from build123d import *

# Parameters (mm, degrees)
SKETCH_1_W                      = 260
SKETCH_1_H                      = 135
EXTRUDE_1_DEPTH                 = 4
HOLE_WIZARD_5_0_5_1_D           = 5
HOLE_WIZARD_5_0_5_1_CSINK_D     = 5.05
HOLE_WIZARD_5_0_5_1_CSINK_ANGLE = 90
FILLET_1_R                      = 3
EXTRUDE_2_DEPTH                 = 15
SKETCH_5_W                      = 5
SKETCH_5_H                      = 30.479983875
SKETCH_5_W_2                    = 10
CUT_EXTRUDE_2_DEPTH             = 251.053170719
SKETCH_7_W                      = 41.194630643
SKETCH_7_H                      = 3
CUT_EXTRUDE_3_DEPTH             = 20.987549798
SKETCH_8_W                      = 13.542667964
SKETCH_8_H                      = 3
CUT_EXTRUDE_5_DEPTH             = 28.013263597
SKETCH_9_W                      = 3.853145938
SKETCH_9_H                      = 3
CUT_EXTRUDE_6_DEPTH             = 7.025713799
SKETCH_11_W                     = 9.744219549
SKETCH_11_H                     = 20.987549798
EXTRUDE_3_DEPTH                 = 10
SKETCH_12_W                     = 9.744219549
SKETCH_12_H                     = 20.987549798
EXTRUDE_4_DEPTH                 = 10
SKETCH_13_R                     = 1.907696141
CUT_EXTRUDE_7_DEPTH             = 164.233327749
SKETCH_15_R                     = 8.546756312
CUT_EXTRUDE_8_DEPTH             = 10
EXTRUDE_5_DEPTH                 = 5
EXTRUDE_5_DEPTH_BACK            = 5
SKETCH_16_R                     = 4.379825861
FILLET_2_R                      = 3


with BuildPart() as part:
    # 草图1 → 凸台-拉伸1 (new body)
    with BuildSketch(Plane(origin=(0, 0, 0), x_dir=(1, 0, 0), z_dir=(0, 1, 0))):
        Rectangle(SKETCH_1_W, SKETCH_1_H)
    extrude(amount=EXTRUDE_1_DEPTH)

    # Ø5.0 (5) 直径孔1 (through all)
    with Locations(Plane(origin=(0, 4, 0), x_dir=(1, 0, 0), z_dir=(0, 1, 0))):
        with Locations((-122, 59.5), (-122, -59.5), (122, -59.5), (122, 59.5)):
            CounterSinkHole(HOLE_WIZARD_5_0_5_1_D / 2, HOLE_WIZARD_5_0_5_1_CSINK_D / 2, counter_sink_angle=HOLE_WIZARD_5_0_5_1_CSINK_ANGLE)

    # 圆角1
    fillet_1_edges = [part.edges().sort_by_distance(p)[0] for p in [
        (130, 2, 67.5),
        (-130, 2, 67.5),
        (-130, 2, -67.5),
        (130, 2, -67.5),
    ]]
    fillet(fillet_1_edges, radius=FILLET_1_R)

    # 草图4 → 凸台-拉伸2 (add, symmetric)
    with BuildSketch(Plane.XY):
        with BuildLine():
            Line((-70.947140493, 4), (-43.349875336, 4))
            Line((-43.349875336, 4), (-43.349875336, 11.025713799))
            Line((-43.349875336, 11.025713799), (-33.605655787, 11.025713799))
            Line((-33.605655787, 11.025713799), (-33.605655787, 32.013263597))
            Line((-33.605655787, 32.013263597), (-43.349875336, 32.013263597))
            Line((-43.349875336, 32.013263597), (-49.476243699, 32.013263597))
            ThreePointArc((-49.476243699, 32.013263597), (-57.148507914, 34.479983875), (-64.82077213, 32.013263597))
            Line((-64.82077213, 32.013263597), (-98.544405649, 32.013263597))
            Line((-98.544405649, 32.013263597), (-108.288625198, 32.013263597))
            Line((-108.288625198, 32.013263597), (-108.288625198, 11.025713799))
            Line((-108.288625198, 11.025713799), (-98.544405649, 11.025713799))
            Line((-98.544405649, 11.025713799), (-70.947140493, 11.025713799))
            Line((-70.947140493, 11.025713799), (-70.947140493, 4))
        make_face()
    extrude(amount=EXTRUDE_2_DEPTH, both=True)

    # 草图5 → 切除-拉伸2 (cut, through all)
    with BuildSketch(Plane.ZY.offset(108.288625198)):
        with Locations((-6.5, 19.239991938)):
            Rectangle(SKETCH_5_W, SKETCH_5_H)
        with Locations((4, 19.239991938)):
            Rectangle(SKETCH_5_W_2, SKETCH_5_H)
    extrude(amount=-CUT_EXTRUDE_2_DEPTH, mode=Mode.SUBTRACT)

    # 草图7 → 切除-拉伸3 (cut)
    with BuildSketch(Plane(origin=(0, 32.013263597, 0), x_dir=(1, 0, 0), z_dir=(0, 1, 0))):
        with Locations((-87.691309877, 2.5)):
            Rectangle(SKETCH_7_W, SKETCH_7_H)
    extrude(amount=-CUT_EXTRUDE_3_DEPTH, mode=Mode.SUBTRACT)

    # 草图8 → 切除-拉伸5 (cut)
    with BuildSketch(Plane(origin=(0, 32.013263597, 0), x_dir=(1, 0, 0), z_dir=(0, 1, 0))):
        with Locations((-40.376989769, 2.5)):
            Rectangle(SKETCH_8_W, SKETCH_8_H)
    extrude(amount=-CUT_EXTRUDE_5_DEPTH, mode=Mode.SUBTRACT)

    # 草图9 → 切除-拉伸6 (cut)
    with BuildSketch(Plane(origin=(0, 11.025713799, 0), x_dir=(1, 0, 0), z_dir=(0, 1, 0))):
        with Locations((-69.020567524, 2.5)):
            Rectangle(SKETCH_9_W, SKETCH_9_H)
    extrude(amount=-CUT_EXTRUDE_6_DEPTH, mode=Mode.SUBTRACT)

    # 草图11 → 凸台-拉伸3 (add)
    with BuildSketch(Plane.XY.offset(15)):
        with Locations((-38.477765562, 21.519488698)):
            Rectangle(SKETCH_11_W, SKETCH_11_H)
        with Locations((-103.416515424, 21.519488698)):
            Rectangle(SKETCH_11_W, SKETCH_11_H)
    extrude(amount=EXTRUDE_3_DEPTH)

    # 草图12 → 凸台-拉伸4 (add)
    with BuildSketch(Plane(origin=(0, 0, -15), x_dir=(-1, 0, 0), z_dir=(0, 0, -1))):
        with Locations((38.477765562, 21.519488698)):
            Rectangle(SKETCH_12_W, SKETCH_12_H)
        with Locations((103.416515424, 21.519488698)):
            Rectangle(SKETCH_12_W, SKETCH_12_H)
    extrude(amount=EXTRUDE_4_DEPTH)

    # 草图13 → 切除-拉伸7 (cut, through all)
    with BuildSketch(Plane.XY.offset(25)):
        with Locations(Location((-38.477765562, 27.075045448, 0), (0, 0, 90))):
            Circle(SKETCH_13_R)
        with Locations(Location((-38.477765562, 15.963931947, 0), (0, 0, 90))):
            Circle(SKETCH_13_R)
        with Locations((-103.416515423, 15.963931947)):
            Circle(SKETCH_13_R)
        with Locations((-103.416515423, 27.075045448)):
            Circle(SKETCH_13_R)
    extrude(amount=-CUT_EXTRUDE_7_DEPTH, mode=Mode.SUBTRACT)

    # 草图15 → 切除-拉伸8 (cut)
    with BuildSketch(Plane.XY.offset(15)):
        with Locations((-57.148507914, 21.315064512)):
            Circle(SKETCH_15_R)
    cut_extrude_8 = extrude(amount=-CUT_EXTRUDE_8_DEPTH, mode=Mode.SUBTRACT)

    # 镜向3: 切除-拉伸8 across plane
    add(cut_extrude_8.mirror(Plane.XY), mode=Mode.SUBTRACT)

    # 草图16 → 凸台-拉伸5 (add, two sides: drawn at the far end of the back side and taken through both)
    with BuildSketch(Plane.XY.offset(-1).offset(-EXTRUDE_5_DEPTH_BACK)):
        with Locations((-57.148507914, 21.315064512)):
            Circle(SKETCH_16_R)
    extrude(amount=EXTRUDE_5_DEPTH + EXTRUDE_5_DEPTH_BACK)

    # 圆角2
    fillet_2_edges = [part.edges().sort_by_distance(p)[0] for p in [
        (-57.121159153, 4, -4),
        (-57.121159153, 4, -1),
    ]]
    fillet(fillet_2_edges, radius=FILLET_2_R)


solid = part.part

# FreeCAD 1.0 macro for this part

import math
import FreeCAD as App
import Part
import Sketcher
from FreeCAD import Vector


def edges_at(feature, points):
    """Names of the edges that pass closest to the given points."""
    edges = feature.Shape.Edges
    near = lambda p: min(range(len(edges)), key=lambda i: edges[i].distToShape(Part.Vertex(*p))[0])
    return sorted({f"Edge{near(p) + 1}" for p in points})

doc = App.newDocument("Part")
body = doc.addObject("PartDesign::Body", "Body")

# Sketch on XZ plane
sketch1 = body.newObject("Sketcher::SketchObject", "Sketch")
sketch1.AttachmentSupport = (doc.getObject("XZ_Plane"), [""])
sketch1.MapMode = "FlatFace"
sketch1.addGeometry(Part.LineSegment(Vector(-130, -67.5, 0), Vector(-130, 67.5, 0)), False)
sketch1.addGeometry(Part.LineSegment(Vector(-130, 67.5, 0), Vector(130, 67.5, 0)), False)
sketch1.addGeometry(Part.LineSegment(Vector(130, 67.5, 0), Vector(130, -67.5, 0)), False)
sketch1.addGeometry(Part.LineSegment(Vector(130, -67.5, 0), Vector(-130, -67.5, 0)), False)
sketch1.addConstraint(Sketcher.Constraint("Coincident", 0, 2, 1, 1))
sketch1.addConstraint(Sketcher.Constraint("Coincident", 1, 2, 2, 1))
sketch1.addConstraint(Sketcher.Constraint("Coincident", 2, 2, 3, 1))
sketch1.addConstraint(Sketcher.Constraint("Coincident", 3, 2, 0, 1))
sketch1.addConstraint(Sketcher.Constraint("Vertical", 0))
sketch1.addConstraint(Sketcher.Constraint("Horizontal", 1))
sketch1.addConstraint(Sketcher.Constraint("Vertical", 2))
sketch1.addConstraint(Sketcher.Constraint("Horizontal", 3))
sketch1.addConstraint(Sketcher.Constraint("Symmetric", 0, 2, 2, 2, -1, 1))
sketch1.addConstraint(Sketcher.Constraint("DistanceX", 1, 1, 1, 2, 260.0))
sketch1.addConstraint(Sketcher.Constraint("DistanceY", 0, 1, 0, 2, 135.0))
pad1 = body.newObject("PartDesign::Pad", "Pad")
pad1.Profile = sketch1
pad1.Length = 4
pad1.Reversed = True

# Sketch on XZ plane
sketch2 = body.newObject("Sketcher::SketchObject", "Sketch001")
sketch2.AttachmentSupport = (doc.getObject("XZ_Plane"), [""])
sketch2.MapMode = "FlatFace"
sketch2.AttachmentOffset = App.Placement(Vector(0, 0, -4), App.Rotation())
sketch2.addGeometry(Part.Circle(Vector(-122, -59.5, 0), Vector(0, 0, 1), 2.5), False)
sketch2.addGeometry(Part.Circle(Vector(-122, 59.5, 0), Vector(0, 0, 1), 2.5), False)
sketch2.addGeometry(Part.Circle(Vector(122, 59.5, 0), Vector(0, 0, 1), 2.5), False)
sketch2.addGeometry(Part.Circle(Vector(122, -59.5, 0), Vector(0, 0, 1), 2.5), False)
sketch2.addConstraint(Sketcher.Constraint("Equal", 0, 1))
sketch2.addConstraint(Sketcher.Constraint("Equal", 1, 2))
sketch2.addConstraint(Sketcher.Constraint("Equal", 2, 3))
sketch2.addConstraint(Sketcher.Constraint("Symmetric", 0, 3, 2, 3, -1, 1))
sketch2.addConstraint(Sketcher.Constraint("Symmetric", 1, 3, 3, 3, -1, 1))
sketch2.addConstraint(Sketcher.Constraint("Symmetric", 1, 3, 2, 3, -2))
sketch2.addConstraint(Sketcher.Constraint("Diameter", 0, 5.0))
sketch2.addConstraint(Sketcher.Constraint("DistanceX", 0, 3, -1, 1, 122.0))
sketch2.addConstraint(Sketcher.Constraint("DistanceY", 0, 3, 1, 3, 119.0))
doc.recompute()
hole = body.newObject("PartDesign::Hole", "Hole")
hole.Profile = sketch2
hole.ThreadType = "None"
hole.Diameter = 5
hole.DepthType = "ThroughAll"
hole.HoleCutType = "Countersink"
hole.HoleCutDiameter = 5.05
hole.HoleCutCountersinkAngle = 90
hole.Reversed = True
doc.recompute()

fillet = body.newObject("PartDesign::Fillet", "Fillet")
fillet.Base = (hole, edges_at(hole, [
    (130, 2, 67.5),
    (-130, 2, 67.5),
    (-130, 2, -67.5),
    (130, 2, -67.5),
]))
fillet.Radius = 3

# Sketch on XY plane
sketch3 = body.newObject("Sketcher::SketchObject", "Sketch002")
sketch3.AttachmentSupport = (doc.getObject("XY_Plane"), [""])
sketch3.MapMode = "FlatFace"
sketch3.addGeometry(Part.LineSegment(Vector(-70.94714, 4, 0), Vector(-43.349875, 4, 0)), False)
sketch3.addGeometry(Part.LineSegment(Vector(-43.349875, 4, 0), Vector(-43.349875, 11.025714, 0)), False)
sketch3.addGeometry(Part.LineSegment(Vector(-43.349875, 11.025714, 0), Vector(-33.605656, 11.025714, 0)), False)
sketch3.addGeometry(Part.LineSegment(Vector(-33.605656, 11.025714, 0), Vector(-33.605656, 32.013264, 0)), False)
sketch3.addGeometry(Part.LineSegment(Vector(-33.605656, 32.013264, 0), Vector(-49.476244, 32.013264, 0)), False)
sketch3.addGeometry(Part.ArcOfCircle(Part.Circle(Vector(-57.148508, 21.315065, 0), Vector(0, 0, 1), 13.164919), math.radians(54.353621), math.radians(125.646379)), False)
sketch3.addGeometry(Part.LineSegment(Vector(-64.820772, 32.013264, 0), Vector(-108.288625, 32.013264, 0)), False)
sketch3.addGeometry(Part.LineSegment(Vector(-108.288625, 32.013264, 0), Vector(-108.288625, 11.025714, 0)), False)
sketch3.addGeometry(Part.LineSegment(Vector(-108.288625, 11.025714, 0), Vector(-70.94714, 11.025714, 0)), False)
sketch3.addGeometry(Part.LineSegment(Vector(-70.94714, 11.025714, 0), Vector(-70.94714, 4, 0)), False)
sketch3.addConstraint(Sketcher.Constraint("Coincident", 0, 2, 1, 1))
sketch3.addConstraint(Sketcher.Constraint("Coincident", 1, 2, 2, 1))
sketch3.addConstraint(Sketcher.Constraint("Coincident", 2, 2, 3, 1))
sketch3.addConstraint(Sketcher.Constraint("Coincident", 3, 2, 4, 1))
sketch3.addConstraint(Sketcher.Constraint("Coincident", 4, 2, 5, 1))
sketch3.addConstraint(Sketcher.Constraint("Coincident", 5, 2, 6, 1))
sketch3.addConstraint(Sketcher.Constraint("Coincident", 6, 2, 7, 1))
sketch3.addConstraint(Sketcher.Constraint("Coincident", 7, 2, 8, 1))
sketch3.addConstraint(Sketcher.Constraint("Coincident", 8, 2, 9, 1))
sketch3.addConstraint(Sketcher.Constraint("Coincident", 9, 2, 0, 1))
sketch3.addConstraint(Sketcher.Constraint("Horizontal", 0))
sketch3.addConstraint(Sketcher.Constraint("Vertical", 1))
sketch3.addConstraint(Sketcher.Constraint("Horizontal", 2))
sketch3.addConstraint(Sketcher.Constraint("Vertical", 3))
sketch3.addConstraint(Sketcher.Constraint("Horizontal", 4))
sketch3.addConstraint(Sketcher.Constraint("Horizontal", 6))
sketch3.addConstraint(Sketcher.Constraint("Vertical", 7))
sketch3.addConstraint(Sketcher.Constraint("Horizontal", 8))
sketch3.addConstraint(Sketcher.Constraint("Vertical", 9))
sketch3.addConstraint(Sketcher.Constraint("Horizontal", 4, 2, 5, 2))
sketch3.addConstraint(Sketcher.Constraint("Horizontal", 2, 2, 7, 2))
sketch3.addConstraint(Sketcher.Constraint("DistanceY", -1, 1, 0, 2, 4.0))
sketch3.addConstraint(Sketcher.Constraint("Radius", 5, 13.164919))
sketch3.addConstraint(Sketcher.Constraint("DistanceX", 2, 1, 2, 2, 9.74422))
sketch3.addConstraint(Sketcher.Constraint("DistanceY", 3, 1, 3, 2, 20.98755))
sketch3.addConstraint(Sketcher.Constraint("DistanceY", 5, 3, 3, 2, 10.698199))
sketch3.addConstraint(Sketcher.Constraint("DistanceX", 0, 1, 0, 2, 27.597265))
sketch3.addConstraint(Sketcher.Constraint("DistanceX", 4, 2, 4, 1, 15.870588))
sketch3.addConstraint(Sketcher.Constraint("DistanceX", 6, 2, 6, 1, 43.467853))
sketch3.addConstraint(Sketcher.Constraint("DistanceY", 1, 1, 1, 2, 7.025714))
sketch3.addConstraint(Sketcher.Constraint("DistanceX", 8, 2, -1, 1, 70.94714))
pad2 = body.newObject("PartDesign::Pad", "Pad001")
pad2.Profile = sketch3
pad2.Length = 30
pad2.Midplane = True

# Sketch on YZ plane
sketch4 = body.newObject("Sketcher::SketchObject", "Sketch003")
sketch4.AttachmentSupport = (doc.getObject("YZ_Plane"), [""])
sketch4.MapMode = "FlatFace"
sketch4.AttachmentOffset = App.Placement(Vector(0, 0, -108.288625), App.Rotation())
sketch4.addGeometry(Part.LineSegment(Vector(34.479984, -9, 0), Vector(4, -9, 0)), False)
sketch4.addGeometry(Part.LineSegment(Vector(4, -9, 0), Vector(4, -4, 0)), False)
sketch4.addGeometry(Part.LineSegment(Vector(4, -4, 0), Vector(34.479984, -4, 0)), False)
sketch4.addGeometry(Part.LineSegment(Vector(34.479984, -4, 0), Vector(34.479984, -9, 0)), False)
sketch4.addGeometry(Part.LineSegment(Vector(34.479984, -1, 0), Vector(4, -1, 0)), False)
sketch4.addGeometry(Part.LineSegment(Vector(4, -1, 0), Vector(4, 9, 0)), False)
sketch4.addGeometry(Part.LineSegment(Vector(4, 9, 0), Vector(34.479984, 9, 0)), False)
sketch4.addGeometry(Part.LineSegment(Vector(34.479984, 9, 0), Vector(34.479984, -1, 0)), False)
sketch4.addConstraint(Sketcher.Constraint("Coincident", 0, 2, 1, 1))
sketch4.addConstraint(Sketcher.Constraint("Coincident", 1, 2, 2, 1))
sketch4.addConstraint(Sketcher.Constraint("Coincident", 2, 2, 3, 1))
sketch4.addConstraint(Sketcher.Constraint("Coincident", 3, 2, 0, 1))
sketch4.addConstraint(Sketcher.Constraint("Coincident", 4, 2, 5, 1))
sketch4.addConstraint(Sketcher.Constraint("Coincident", 5, 2, 6, 1))
sketch4.addConstraint(Sketcher.Constraint("Coincident", 6, 2, 7, 1))
sketch4.addConstraint(Sketcher.Constraint("Coincident", 7, 2, 4, 1))
sketch4.addConstraint(Sketcher.Constraint("Horizontal", 0))
sketch4.addConstraint(Sketcher.Constraint("Vertical", 1))
sketch4.addConstraint(Sketcher.Constraint("Horizontal", 2))
sketch4.addConstraint(Sketcher.Constraint("Vertical", 3))
sketch4.addConstraint(Sketcher.Constraint("Horizontal", 4))
sketch4.addConstraint(Sketcher.Constraint("Vertical", 5))
sketch4.addConstraint(Sketcher.Constraint("Horizontal", 6))
sketch4.addConstraint(Sketcher.Constraint("Vertical", 7))
sketch4.addConstraint(Sketcher.Constraint("Symmetric", 0, 2, 5, 2, -1))
sketch4.addConstraint(Sketcher.Constraint("Vertical", 3, 2, 6, 2))
sketch4.addConstraint(Sketcher.Constraint("DistanceY", 1, 1, 1, 2, 5.0))
sketch4.addConstraint(Sketcher.Constraint("DistanceY", 5, 1, 5, 2, 10.0))
sketch4.addConstraint(Sketcher.Constraint("DistanceX", -1, 1, 0, 2, 4.0))
sketch4.addConstraint(Sketcher.Constraint("DistanceY", 0, 2, -1, 1, 9.0))
sketch4.addConstraint(Sketcher.Constraint("DistanceX", 0, 2, 0, 1, 30.479984))
pocket1 = body.newObject("PartDesign::Pocket", "Pocket")
pocket1.Profile = sketch4
pocket1.Type = "ThroughAll"
pocket1.Reversed = True

# Sketch on XZ plane
sketch5 = body.newObject("Sketcher::SketchObject", "Sketch004")
sketch5.AttachmentSupport = (doc.getObject("XZ_Plane"), [""])
sketch5.MapMode = "FlatFace"
sketch5.AttachmentOffset = App.Placement(Vector(0, 0, -32.013264), App.Rotation())
sketch5.addGeometry(Part.LineSegment(Vector(-108.288625, -4, 0), Vector(-108.288625, -1, 0)), False)
sketch5.addGeometry(Part.LineSegment(Vector(-108.288625, -1, 0), Vector(-67.093995, -1, 0)), False)
sketch5.addGeometry(Part.LineSegment(Vector(-67.093995, -1, 0), Vector(-67.093995, -4, 0)), False)
sketch5.addGeometry(Part.LineSegment(Vector(-67.093995, -4, 0), Vector(-108.288625, -4, 0)), False)
sketch5.addConstraint(Sketcher.Constraint("Coincident", 0, 2, 1, 1))
sketch5.addConstraint(Sketcher.Constraint("Coincident", 1, 2, 2, 1))
sketch5.addConstraint(Sketcher.Constraint("Coincident", 2, 2, 3, 1))
sketch5.addConstraint(Sketcher.Constraint("Coincident", 3, 2, 0, 1))
sketch5.addConstraint(Sketcher.Constraint("Vertical", 0))
sketch5.addConstraint(Sketcher.Constraint("Horizontal", 1))
sketch5.addConstraint(Sketcher.Constraint("Vertical", 2))
sketch5.addConstraint(Sketcher.Constraint("Horizontal", 3))
sketch5.addConstraint(Sketcher.Constraint("DistanceY", 0, 1, 0, 2, 3.0))
sketch5.addConstraint(Sketcher.Constraint("DistanceY", 0, 2, -1, 1, 1.0))
sketch5.addConstraint(Sketcher.Constraint("DistanceX", 1, 1, 1, 2, 41.194631))
sketch5.addConstraint(Sketcher.Constraint("DistanceX", 0, 2, -1, 1, 108.288625))
pocket2 = body.newObject("PartDesign::Pocket", "Pocket001")
pocket2.Profile = sketch5
pocket2.Length = 20.98755
pocket2.Reversed = True

# Sketch on XZ plane
sketch6 = body.newObject("Sketcher::SketchObject", "Sketch005")
sketch6.AttachmentSupport = (doc.getObject("XZ_Plane"), [""])
sketch6.MapMode = "FlatFace"
sketch6.AttachmentOffset = App.Placement(Vector(0, 0, -32.013264), App.Rotation())
sketch6.addGeometry(Part.LineSegment(Vector(-47.148324, -4, 0), Vector(-47.148324, -1, 0)), False)
sketch6.addGeometry(Part.LineSegment(Vector(-47.148324, -1, 0), Vector(-33.605656, -1, 0)), False)
sketch6.addGeometry(Part.LineSegment(Vector(-33.605656, -1, 0), Vector(-33.605656, -4, 0)), False)
sketch6.addGeometry(Part.LineSegment(Vector(-33.605656, -4, 0), Vector(-47.148324, -4, 0)), False)
sketch6.addConstraint(Sketcher.Constraint("Coincident", 0, 2, 1, 1))
sketch6.addConstraint(Sketcher.Constraint("Coincident", 1, 2, 2, 1))
sketch6.addConstraint(Sketcher.Constraint("Coincident", 2, 2, 3, 1))
sketch6.addConstraint(Sketcher.Constraint("Coincident", 3, 2, 0, 1))
sketch6.addConstraint(Sketcher.Constraint("Vertical", 0))
sketch6.addConstraint(Sketcher.Constraint("Horizontal", 1))
sketch6.addConstraint(Sketcher.Constraint("Vertical", 2))
sketch6.addConstraint(Sketcher.Constraint("Horizontal", 3))
sketch6.addConstraint(Sketcher.Constraint("DistanceY", 0, 1, 0, 2, 3.0))
sketch6.addConstraint(Sketcher.Constraint("DistanceY", 0, 2, -1, 1, 1.0))
sketch6.addConstraint(Sketcher.Constraint("DistanceX", 1, 1, 1, 2, 13.542668))
sketch6.addConstraint(Sketcher.Constraint("DistanceX", 0, 2, -1, 1, 47.148324))
pocket3 = body.newObject("PartDesign::Pocket", "Pocket002")
pocket3.Profile = sketch6
pocket3.Length = 28.013264
pocket3.Reversed = True

# Sketch on XZ plane
sketch7 = body.newObject("Sketcher::SketchObject", "Sketch006")
sketch7.AttachmentSupport = (doc.getObject("XZ_Plane"), [""])
sketch7.MapMode = "FlatFace"
sketch7.AttachmentOffset = App.Placement(Vector(0, 0, -11.025714), App.Rotation())
sketch7.addGeometry(Part.LineSegment(Vector(-70.94714, -4, 0), Vector(-70.94714, -1, 0)), False)
sketch7.addGeometry(Part.LineSegment(Vector(-70.94714, -1, 0), Vector(-67.093995, -1, 0)), False)
sketch7.addGeometry(Part.LineSegment(Vector(-67.093995, -1, 0), Vector(-67.093995, -4, 0)), False)
sketch7.addGeometry(Part.LineSegment(Vector(-67.093995, -4, 0), Vector(-70.94714, -4, 0)), False)
sketch7.addConstraint(Sketcher.Constraint("Coincident", 0, 2, 1, 1))
sketch7.addConstraint(Sketcher.Constraint("Coincident", 1, 2, 2, 1))
sketch7.addConstraint(Sketcher.Constraint("Coincident", 2, 2, 3, 1))
sketch7.addConstraint(Sketcher.Constraint("Coincident", 3, 2, 0, 1))
sketch7.addConstraint(Sketcher.Constraint("Vertical", 0))
sketch7.addConstraint(Sketcher.Constraint("Horizontal", 1))
sketch7.addConstraint(Sketcher.Constraint("Vertical", 2))
sketch7.addConstraint(Sketcher.Constraint("Horizontal", 3))
sketch7.addConstraint(Sketcher.Constraint("DistanceY", 0, 1, 0, 2, 3.0))
sketch7.addConstraint(Sketcher.Constraint("DistanceY", 0, 2, -1, 1, 1.0))
sketch7.addConstraint(Sketcher.Constraint("DistanceX", 1, 1, 1, 2, 3.853146))
sketch7.addConstraint(Sketcher.Constraint("DistanceX", 0, 2, -1, 1, 70.94714))
pocket4 = body.newObject("PartDesign::Pocket", "Pocket003")
pocket4.Profile = sketch7
pocket4.Length = 7.025714
pocket4.Reversed = True

# Sketch on XY plane
sketch8 = body.newObject("Sketcher::SketchObject", "Sketch007")
sketch8.AttachmentSupport = (doc.getObject("XY_Plane"), [""])
sketch8.MapMode = "FlatFace"
sketch8.AttachmentOffset = App.Placement(Vector(0, 0, 15), App.Rotation())
sketch8.addGeometry(Part.LineSegment(Vector(-43.349875, 32.013264, 0), Vector(-43.349875, 11.025714, 0)), False)
sketch8.addGeometry(Part.LineSegment(Vector(-43.349875, 11.025714, 0), Vector(-33.605656, 11.025714, 0)), False)
sketch8.addGeometry(Part.LineSegment(Vector(-33.605656, 11.025714, 0), Vector(-33.605656, 32.013264, 0)), False)
sketch8.addGeometry(Part.LineSegment(Vector(-33.605656, 32.013264, 0), Vector(-43.349875, 32.013264, 0)), False)
sketch8.addGeometry(Part.LineSegment(Vector(-108.288625, 32.013264, 0), Vector(-108.288625, 11.025714, 0)), False)
sketch8.addGeometry(Part.LineSegment(Vector(-108.288625, 11.025714, 0), Vector(-98.544406, 11.025714, 0)), False)
sketch8.addGeometry(Part.LineSegment(Vector(-98.544406, 11.025714, 0), Vector(-98.544406, 32.013264, 0)), False)
sketch8.addGeometry(Part.LineSegment(Vector(-98.544406, 32.013264, 0), Vector(-108.288625, 32.013264, 0)), False)
sketch8.addConstraint(Sketcher.Constraint("Coincident", 0, 2, 1, 1))
sketch8.addConstraint(Sketcher.Constraint("Coincident", 1, 2, 2, 1))
sketch8.addConstraint(Sketcher.Constraint("Coincident", 2, 2, 3, 1))
sketch8.addConstraint(Sketcher.Constraint("Coincident", 3, 2, 0, 1))
sketch8.addConstraint(Sketcher.Constraint("Coincident", 4, 2, 5, 1))
sketch8.addConstraint(Sketcher.Constraint("Coincident", 5, 2, 6, 1))
sketch8.addConstraint(Sketcher.Constraint("Coincident", 6, 2, 7, 1))
sketch8.addConstraint(Sketcher.Constraint("Coincident", 7, 2, 4, 1))
sketch8.addConstraint(Sketcher.Constraint("Vertical", 0))
sketch8.addConstraint(Sketcher.Constraint("Horizontal", 1))
sketch8.addConstraint(Sketcher.Constraint("Vertical", 2))
sketch8.addConstraint(Sketcher.Constraint("Horizontal", 3))
sketch8.addConstraint(Sketcher.Constraint("Vertical", 4))
sketch8.addConstraint(Sketcher.Constraint("Horizontal", 5))
sketch8.addConstraint(Sketcher.Constraint("Vertical", 6))
sketch8.addConstraint(Sketcher.Constraint("Horizontal", 7))
sketch8.addConstraint(Sketcher.Constraint("Horizontal", 1, 2, 4, 2))
sketch8.addConstraint(Sketcher.Constraint("Horizontal", 3, 2, 6, 2))
sketch8.addConstraint(Sketcher.Constraint("Equal", 3, 5))
sketch8.addConstraint(Sketcher.Constraint("DistanceX", 1, 1, 1, 2, 9.74422))
sketch8.addConstraint(Sketcher.Constraint("DistanceY", 0, 2, 0, 1, 20.98755))
sketch8.addConstraint(Sketcher.Constraint("DistanceX", 4, 2, 0, 2, 64.93875))
sketch8.addConstraint(Sketcher.Constraint("DistanceX", 0, 2, -1, 1, 43.349875))
sketch8.addConstraint(Sketcher.Constraint("DistanceY", -1, 1, 0, 2, 11.025714))
pad3 = body.newObject("PartDesign::Pad", "Pad002")
pad3.Profile = sketch8
pad3.Length = 10

# Sketch on XY plane
sketch9 = body.newObject("Sketcher::SketchObject", "Sketch008")
sketch9.AttachmentSupport = (doc.getObject("XY_Plane"), [""])
sketch9.MapMode = "FlatFace"
sketch9.AttachmentOffset = App.Placement(Vector(0, 0, -15), App.Rotation())
sketch9.addGeometry(Part.LineSegment(Vector(-33.605656, 32.013264, 0), Vector(-33.605656, 11.025714, 0)), False)
sketch9.addGeometry(Part.LineSegment(Vector(-33.605656, 11.025714, 0), Vector(-43.349875, 11.025714, 0)), False)
sketch9.addGeometry(Part.LineSegment(Vector(-43.349875, 11.025714, 0), Vector(-43.349875, 32.013264, 0)), False)
sketch9.addGeometry(Part.LineSegment(Vector(-43.349875, 32.013264, 0), Vector(-33.605656, 32.013264, 0)), False)
sketch9.addGeometry(Part.LineSegment(Vector(-98.544406, 32.013264, 0), Vector(-98.544406, 11.025714, 0)), False)
sketch9.addGeometry(Part.LineSegment(Vector(-98.544406, 11.025714, 0), Vector(-108.288625, 11.025714, 0)), False)
sketch9.addGeometry(Part.LineSegment(Vector(-108.288625, 11.025714, 0), Vector(-108.288625, 32.013264, 0)), False)
sketch9.addGeometry(Part.LineSegment(Vector(-108.288625, 32.013264, 0), Vector(-98.544406, 32.013264, 0)), False)
sketch9.addConstraint(Sketcher.Constraint("Coincident", 0, 2, 1, 1))
sketch9.addConstraint(Sketcher.Constraint("Coincident", 1, 2, 2, 1))
sketch9.addConstraint(Sketcher.Constraint("Coincident", 2, 2, 3, 1))
sketch9.addConstraint(Sketcher.Constraint("Coincident", 3, 2, 0, 1))
sketch9.addConstraint(Sketcher.Constraint("Coincident", 4, 2, 5, 1))
sketch9.addConstraint(Sketcher.Constraint("Coincident", 5, 2, 6, 1))
sketch9.addConstraint(Sketcher.Constraint("Coincident", 6, 2, 7, 1))
sketch9.addConstraint(Sketcher.Constraint("Coincident", 7, 2, 4, 1))
sketch9.addConstraint(Sketcher.Constraint("Vertical", 0))
sketch9.addConstraint(Sketcher.Constraint("Horizontal", 1))
sketch9.addConstraint(Sketcher.Constraint("Vertical", 2))
sketch9.addConstraint(Sketcher.Constraint("Horizontal", 3))
sketch9.addConstraint(Sketcher.Constraint("Vertical", 4))
sketch9.addConstraint(Sketcher.Constraint("Horizontal", 5))
sketch9.addConstraint(Sketcher.Constraint("Vertical", 6))
sketch9.addConstraint(Sketcher.Constraint("Horizontal", 7))
sketch9.addConstraint(Sketcher.Constraint("Horizontal", 1, 2, 4, 2))
sketch9.addConstraint(Sketcher.Constraint("Horizontal", 3, 2, 6, 2))
sketch9.addConstraint(Sketcher.Constraint("Equal", 3, 5))
sketch9.addConstraint(Sketcher.Constraint("DistanceX", 1, 2, 1, 1, 9.74422))
sketch9.addConstraint(Sketcher.Constraint("DistanceY", 0, 2, 0, 1, 20.98755))
sketch9.addConstraint(Sketcher.Constraint("DistanceX", 4, 2, 1, 2, 55.19453))
sketch9.addConstraint(Sketcher.Constraint("DistanceX", 0, 2, -1, 1, 33.605656))
sketch9.addConstraint(Sketcher.Constraint("DistanceY", -1, 1, 0, 2, 11.025714))
pad4 = body.newObject("PartDesign::Pad", "Pad003")
pad4.Profile = sketch9
pad4.Length = 10
pad4.Reversed = True

# Sketch on XY plane
sketch10 = body.newObject("Sketcher::SketchObject", "Sketch009")
sketch10.AttachmentSupport = (doc.getObject("XY_Plane"), [""])
sketch10.MapMode = "FlatFace"
sketch10.AttachmentOffset = App.Placement(Vector(0, 0, 25), App.Rotation())
sketch10.addGeometry(Part.Circle(Vector(-38.477766, 27.075045, 0), Vector(0, 0, 1), 1.907696), False)
sketch10.addGeometry(Part.Circle(Vector(-38.477766, 15.963932, 0), Vector(0, 0, 1), 1.907696), False)
sketch10.addGeometry(Part.Circle(Vector(-103.416515, 15.963932, 0), Vector(0, 0, 1), 1.907696), False)
sketch10.addGeometry(Part.Circle(Vector(-103.416515, 27.075045, 0), Vector(0, 0, 1), 1.907696), False)
sketch10.addConstraint(Sketcher.Constraint("Equal", 0, 1))
sketch10.addConstraint(Sketcher.Constraint("Equal", 1, 2))
sketch10.addConstraint(Sketcher.Constraint("Equal", 2, 3))
sketch10.addConstraint(Sketcher.Constraint("Horizontal", 1, 3, 2, 3))
sketch10.addConstraint(Sketcher.Constraint("Horizontal", 0, 3, 3, 3))
sketch10.addConstraint(Sketcher.Constraint("Vertical", 0, 3, 1, 3))
sketch10.addConstraint(Sketcher.Constraint("Vertical", 2, 3, 3, 3))
sketch10.addConstraint(Sketcher.Constraint("Diameter", 0, 3.815392))
sketch10.addConstraint(Sketcher.Constraint("DistanceY", -1, 1, 1, 3, 15.963932))
sketch10.addConstraint(Sketcher.Constraint("DistanceX", 2, 3, 1, 3, 64.93875))
sketch10.addConstraint(Sketcher.Constraint("DistanceX", 0, 3, -1, 1, 38.477766))
sketch10.addConstraint(Sketcher.Constraint("DistanceY", -1, 1, 0, 3, 27.075045))
pocket5 = body.newObject("PartDesign::Pocket", "Pocket004")
pocket5.Profile = sketch10
pocket5.Type = "ThroughAll"

# Sketch on XY plane
sketch11 = body.newObject("Sketcher::SketchObject", "Sketch010")
sketch11.AttachmentSupport = (doc.getObject("XY_Plane"), [""])
sketch11.MapMode = "FlatFace"
sketch11.AttachmentOffset = App.Placement(Vector(0, 0, 15), App.Rotation())
sketch11.addGeometry(Part.Circle(Vector(-57.148508, 21.315065, 0), Vector(0, 0, 1), 8.546756), False)
sketch11.addConstraint(Sketcher.Constraint("Diameter", 0, 17.093513))
sketch11.addConstraint(Sketcher.Constraint("DistanceX", 0, 3, -1, 1, 57.148508))
sketch11.addConstraint(Sketcher.Constraint("DistanceY", -1, 1, 0, 3, 21.315065))
pocket6 = body.newObject("PartDesign::Pocket", "Pocket005")
pocket6.Profile = sketch11
pocket6.Length = 10
doc.recompute()

mirrored = body.newObject("PartDesign::Mirrored", "Mirrored")
mirrored.Originals = [pocket6]
mirrored.MirrorPlane = (doc.getObject("XY_Plane"), [""])
body.Tip = mirrored

# Sketch on XY plane
sketch12 = body.newObject("Sketcher::SketchObject", "Sketch011")
sketch12.AttachmentSupport = (doc.getObject("XY_Plane"), [""])
sketch12.MapMode = "FlatFace"
sketch12.AttachmentOffset = App.Placement(Vector(0, 0, -1), App.Rotation())
sketch12.addGeometry(Part.Circle(Vector(-57.148508, 21.315065, 0), Vector(0, 0, 1), 4.379826), False)
sketch12.addConstraint(Sketcher.Constraint("Diameter", 0, 8.759652))
sketch12.addConstraint(Sketcher.Constraint("DistanceX", 0, 3, -1, 1, 57.148508))
sketch12.addConstraint(Sketcher.Constraint("DistanceY", -1, 1, 0, 3, 21.315065))
pad5 = body.newObject("PartDesign::Pad", "Pad004")
pad5.Profile = sketch12
pad5.Type = "TwoLengths"
pad5.Length = 5
pad5.Length2 = 5
doc.recompute()

fillet2 = body.newObject("PartDesign::Fillet", "Fillet001")
fillet2.Base = (pad5, edges_at(pad5, [(-57.121, 4, -4), (-57.121, 4, -1)]))
fillet2.Radius = 3

doc.recompute()
